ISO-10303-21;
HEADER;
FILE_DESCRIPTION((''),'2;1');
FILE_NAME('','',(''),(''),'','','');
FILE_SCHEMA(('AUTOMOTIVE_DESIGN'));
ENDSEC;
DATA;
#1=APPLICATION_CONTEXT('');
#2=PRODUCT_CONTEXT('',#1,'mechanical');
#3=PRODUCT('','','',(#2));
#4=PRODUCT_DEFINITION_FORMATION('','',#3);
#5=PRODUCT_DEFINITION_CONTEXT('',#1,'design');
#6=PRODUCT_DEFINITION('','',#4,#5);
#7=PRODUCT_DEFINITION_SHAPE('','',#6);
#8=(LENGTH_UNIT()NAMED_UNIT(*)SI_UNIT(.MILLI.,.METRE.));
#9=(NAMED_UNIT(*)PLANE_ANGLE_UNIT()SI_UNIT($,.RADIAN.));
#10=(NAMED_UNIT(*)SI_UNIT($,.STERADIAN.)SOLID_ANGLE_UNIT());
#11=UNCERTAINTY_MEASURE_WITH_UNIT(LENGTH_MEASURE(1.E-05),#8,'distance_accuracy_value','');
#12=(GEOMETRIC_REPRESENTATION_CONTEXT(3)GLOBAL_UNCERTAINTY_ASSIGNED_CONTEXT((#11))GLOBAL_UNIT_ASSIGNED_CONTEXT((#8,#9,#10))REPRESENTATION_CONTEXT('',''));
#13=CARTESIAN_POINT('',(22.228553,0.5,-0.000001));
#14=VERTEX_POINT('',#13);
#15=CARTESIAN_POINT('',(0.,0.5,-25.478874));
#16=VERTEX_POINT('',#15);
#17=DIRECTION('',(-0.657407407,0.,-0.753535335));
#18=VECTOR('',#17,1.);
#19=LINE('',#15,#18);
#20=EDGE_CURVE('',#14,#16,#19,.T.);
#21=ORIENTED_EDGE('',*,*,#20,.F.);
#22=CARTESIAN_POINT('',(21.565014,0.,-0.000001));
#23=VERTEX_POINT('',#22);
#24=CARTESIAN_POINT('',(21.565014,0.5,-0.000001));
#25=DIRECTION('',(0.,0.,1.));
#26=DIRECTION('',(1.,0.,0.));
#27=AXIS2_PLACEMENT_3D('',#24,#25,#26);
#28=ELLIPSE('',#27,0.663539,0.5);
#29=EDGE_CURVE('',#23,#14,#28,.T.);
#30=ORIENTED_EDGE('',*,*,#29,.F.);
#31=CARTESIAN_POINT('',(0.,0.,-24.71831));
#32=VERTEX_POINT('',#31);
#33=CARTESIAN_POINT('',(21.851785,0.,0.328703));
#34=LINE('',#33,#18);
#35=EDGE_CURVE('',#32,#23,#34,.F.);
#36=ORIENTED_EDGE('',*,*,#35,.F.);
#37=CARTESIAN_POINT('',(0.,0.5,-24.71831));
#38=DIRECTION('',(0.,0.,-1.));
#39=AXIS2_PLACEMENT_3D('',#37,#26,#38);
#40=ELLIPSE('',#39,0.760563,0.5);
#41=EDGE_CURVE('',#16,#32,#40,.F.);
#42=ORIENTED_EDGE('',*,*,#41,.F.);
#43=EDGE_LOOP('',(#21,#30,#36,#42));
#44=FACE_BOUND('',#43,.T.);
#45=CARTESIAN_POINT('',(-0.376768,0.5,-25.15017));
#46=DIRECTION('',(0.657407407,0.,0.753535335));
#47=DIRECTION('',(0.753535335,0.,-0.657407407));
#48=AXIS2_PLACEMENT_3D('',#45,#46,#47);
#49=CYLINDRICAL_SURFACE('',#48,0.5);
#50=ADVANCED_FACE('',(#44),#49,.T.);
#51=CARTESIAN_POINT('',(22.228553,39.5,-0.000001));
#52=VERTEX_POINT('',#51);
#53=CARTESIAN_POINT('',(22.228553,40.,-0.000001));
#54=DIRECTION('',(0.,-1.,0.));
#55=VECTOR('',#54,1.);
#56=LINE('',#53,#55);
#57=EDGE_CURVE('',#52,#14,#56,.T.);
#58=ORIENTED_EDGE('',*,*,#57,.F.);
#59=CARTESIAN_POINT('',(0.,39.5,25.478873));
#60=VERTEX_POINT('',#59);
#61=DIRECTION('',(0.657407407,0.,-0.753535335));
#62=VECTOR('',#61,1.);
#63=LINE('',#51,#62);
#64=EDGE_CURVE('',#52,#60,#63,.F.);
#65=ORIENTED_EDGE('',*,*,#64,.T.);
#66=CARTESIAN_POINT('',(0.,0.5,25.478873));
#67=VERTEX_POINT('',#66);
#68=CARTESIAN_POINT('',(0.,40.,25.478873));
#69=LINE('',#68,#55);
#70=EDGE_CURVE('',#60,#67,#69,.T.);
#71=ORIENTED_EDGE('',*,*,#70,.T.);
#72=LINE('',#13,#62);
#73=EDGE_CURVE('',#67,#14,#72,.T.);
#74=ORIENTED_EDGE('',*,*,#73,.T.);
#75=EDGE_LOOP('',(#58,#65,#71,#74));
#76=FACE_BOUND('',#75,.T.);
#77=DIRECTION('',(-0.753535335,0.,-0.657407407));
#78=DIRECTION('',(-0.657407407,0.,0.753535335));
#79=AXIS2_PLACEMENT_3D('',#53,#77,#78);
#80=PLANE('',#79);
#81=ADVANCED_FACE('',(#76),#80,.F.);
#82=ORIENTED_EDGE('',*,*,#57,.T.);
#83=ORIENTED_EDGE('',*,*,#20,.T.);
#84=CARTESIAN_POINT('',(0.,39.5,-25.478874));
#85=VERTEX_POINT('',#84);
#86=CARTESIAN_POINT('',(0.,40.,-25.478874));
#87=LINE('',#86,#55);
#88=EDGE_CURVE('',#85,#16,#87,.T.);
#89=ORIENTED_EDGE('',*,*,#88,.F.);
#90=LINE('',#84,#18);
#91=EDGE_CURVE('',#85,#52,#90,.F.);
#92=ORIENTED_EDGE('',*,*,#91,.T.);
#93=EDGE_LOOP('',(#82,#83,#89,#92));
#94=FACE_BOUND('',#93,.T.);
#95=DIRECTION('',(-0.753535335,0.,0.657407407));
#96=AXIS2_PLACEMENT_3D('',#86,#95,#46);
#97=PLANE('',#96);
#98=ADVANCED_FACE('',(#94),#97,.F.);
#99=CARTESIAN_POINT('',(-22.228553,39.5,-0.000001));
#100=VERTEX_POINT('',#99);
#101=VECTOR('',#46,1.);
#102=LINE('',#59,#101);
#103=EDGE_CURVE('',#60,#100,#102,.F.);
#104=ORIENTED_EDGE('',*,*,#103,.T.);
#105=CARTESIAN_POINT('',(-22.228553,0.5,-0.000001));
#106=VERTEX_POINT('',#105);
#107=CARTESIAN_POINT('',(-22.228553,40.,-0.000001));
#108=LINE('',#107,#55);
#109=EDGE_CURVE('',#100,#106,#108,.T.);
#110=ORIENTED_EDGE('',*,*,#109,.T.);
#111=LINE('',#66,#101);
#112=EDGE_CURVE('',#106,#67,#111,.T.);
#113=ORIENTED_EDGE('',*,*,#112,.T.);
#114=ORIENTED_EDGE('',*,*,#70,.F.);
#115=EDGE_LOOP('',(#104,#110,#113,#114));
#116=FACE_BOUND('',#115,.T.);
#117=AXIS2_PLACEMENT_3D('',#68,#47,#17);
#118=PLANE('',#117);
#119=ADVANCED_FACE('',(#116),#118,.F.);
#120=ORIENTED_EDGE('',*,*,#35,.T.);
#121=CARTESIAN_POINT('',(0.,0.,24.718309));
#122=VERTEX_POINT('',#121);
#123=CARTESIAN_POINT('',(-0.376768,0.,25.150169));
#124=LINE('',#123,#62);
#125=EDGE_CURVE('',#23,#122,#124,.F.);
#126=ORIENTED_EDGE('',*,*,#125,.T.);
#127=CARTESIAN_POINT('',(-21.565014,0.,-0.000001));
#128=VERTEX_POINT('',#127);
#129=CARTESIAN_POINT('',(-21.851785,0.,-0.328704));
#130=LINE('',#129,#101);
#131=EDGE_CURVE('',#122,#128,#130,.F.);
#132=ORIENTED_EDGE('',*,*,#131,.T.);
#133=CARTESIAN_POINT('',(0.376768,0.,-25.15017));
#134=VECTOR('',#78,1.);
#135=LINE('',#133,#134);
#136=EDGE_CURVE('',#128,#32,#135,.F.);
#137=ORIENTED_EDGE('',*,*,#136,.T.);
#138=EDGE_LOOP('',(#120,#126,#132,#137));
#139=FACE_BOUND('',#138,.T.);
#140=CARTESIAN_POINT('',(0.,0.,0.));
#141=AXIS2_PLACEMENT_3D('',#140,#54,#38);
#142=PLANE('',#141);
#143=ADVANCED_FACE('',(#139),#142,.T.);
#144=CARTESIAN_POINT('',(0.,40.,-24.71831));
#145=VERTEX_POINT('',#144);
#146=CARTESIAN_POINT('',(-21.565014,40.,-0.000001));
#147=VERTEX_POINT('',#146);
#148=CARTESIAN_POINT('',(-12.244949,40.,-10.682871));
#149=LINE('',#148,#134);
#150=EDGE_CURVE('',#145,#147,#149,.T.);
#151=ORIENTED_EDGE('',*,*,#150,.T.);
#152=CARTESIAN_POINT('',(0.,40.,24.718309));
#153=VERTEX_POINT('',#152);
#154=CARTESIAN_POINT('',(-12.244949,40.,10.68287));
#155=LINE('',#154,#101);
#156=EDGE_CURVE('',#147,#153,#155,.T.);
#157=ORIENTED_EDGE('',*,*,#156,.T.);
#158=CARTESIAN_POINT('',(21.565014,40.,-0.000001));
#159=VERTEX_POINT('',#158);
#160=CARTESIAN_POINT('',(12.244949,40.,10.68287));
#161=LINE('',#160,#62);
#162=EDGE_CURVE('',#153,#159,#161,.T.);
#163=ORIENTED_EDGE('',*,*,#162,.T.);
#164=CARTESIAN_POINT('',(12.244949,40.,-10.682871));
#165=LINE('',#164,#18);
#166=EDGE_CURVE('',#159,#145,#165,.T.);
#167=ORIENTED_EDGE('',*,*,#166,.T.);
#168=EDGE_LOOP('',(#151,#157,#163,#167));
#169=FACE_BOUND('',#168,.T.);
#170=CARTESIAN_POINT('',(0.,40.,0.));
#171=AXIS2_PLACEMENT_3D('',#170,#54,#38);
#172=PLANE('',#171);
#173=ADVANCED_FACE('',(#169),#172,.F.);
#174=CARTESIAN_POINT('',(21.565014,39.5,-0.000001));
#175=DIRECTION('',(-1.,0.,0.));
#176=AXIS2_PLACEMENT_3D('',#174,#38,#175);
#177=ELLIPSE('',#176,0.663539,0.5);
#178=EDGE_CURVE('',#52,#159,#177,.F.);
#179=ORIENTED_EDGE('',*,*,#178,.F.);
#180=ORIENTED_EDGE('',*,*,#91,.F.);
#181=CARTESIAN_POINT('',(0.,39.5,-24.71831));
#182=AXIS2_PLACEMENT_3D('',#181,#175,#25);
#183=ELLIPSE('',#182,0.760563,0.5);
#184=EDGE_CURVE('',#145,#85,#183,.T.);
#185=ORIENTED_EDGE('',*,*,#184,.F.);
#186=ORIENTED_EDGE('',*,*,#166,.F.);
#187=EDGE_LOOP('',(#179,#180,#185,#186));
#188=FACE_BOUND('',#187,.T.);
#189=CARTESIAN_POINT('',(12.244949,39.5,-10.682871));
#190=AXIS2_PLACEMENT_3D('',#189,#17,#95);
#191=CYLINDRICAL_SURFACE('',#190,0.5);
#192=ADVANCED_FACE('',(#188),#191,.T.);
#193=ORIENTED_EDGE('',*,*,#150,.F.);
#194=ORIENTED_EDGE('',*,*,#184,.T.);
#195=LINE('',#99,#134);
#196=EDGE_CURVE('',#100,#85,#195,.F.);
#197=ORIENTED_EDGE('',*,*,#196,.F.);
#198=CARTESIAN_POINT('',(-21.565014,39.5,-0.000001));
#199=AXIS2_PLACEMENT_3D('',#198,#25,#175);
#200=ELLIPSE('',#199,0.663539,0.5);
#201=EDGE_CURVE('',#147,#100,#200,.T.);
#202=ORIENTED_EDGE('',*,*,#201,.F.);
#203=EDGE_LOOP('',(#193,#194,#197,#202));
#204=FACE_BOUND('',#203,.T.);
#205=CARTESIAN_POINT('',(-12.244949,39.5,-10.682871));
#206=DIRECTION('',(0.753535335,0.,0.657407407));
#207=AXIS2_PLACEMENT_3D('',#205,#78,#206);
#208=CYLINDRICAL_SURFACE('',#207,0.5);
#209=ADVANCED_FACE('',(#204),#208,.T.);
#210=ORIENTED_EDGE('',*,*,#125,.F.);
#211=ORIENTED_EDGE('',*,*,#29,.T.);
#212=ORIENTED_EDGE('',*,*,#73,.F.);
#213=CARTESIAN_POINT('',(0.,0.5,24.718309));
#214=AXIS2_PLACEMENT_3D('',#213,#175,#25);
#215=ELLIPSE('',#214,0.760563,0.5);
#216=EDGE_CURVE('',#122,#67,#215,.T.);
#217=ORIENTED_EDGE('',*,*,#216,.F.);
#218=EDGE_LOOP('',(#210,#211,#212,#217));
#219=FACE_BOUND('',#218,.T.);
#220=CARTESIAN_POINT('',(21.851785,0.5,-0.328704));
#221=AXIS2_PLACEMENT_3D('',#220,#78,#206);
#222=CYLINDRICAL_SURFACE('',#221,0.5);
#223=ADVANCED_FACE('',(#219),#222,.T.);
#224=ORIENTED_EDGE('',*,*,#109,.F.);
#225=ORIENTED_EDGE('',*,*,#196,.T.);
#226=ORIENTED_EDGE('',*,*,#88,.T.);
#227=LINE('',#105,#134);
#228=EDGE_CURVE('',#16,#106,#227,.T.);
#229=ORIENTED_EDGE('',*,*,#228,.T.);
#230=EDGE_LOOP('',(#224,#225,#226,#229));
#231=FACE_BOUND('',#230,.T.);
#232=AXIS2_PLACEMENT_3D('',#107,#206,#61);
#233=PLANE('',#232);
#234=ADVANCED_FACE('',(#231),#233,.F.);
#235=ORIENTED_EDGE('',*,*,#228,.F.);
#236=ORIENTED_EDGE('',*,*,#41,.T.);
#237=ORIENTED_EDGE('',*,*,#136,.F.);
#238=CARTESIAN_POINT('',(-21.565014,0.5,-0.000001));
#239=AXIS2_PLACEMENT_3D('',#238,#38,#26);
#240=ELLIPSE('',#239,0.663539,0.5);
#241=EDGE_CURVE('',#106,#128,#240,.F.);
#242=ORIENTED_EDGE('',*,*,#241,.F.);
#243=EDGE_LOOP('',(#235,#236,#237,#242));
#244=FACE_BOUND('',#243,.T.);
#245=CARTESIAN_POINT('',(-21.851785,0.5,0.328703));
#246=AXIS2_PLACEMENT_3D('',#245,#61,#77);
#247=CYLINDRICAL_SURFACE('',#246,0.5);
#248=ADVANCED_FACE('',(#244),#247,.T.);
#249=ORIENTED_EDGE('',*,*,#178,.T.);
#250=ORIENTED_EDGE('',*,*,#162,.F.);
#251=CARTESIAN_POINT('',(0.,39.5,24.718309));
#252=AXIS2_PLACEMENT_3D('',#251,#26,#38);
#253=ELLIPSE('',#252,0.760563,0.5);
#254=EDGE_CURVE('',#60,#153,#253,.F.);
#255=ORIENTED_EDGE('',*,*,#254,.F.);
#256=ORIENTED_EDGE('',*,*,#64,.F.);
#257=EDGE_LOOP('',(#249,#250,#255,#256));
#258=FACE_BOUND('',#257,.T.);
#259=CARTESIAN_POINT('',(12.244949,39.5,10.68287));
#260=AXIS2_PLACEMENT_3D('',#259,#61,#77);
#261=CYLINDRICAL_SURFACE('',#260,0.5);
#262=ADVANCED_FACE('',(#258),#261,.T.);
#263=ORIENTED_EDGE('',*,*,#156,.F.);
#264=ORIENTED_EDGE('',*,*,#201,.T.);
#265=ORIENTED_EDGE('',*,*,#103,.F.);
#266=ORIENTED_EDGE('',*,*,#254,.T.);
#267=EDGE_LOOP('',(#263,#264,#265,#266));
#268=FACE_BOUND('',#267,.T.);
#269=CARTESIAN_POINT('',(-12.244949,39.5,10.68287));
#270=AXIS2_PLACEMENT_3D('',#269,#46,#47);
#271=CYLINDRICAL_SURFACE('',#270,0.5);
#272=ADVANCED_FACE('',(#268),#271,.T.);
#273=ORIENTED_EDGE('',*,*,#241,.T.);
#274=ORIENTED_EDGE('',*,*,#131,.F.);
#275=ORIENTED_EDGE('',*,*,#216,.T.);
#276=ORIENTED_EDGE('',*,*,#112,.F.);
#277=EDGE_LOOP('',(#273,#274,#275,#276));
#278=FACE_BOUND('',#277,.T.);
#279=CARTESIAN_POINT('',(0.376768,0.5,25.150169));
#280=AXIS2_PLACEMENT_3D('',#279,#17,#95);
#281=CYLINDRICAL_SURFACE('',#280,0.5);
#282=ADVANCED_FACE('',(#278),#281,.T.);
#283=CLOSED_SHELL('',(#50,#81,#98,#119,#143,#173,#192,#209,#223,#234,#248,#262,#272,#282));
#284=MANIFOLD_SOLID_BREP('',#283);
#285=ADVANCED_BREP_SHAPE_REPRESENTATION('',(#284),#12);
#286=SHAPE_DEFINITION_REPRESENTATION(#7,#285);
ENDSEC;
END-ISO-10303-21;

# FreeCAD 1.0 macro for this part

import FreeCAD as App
import Part
import Sketcher
from FreeCAD import Vector
Q = App.Units.Quantity


def edges_at(feature, points):
    """Names of the edges that pass closest to the given points."""
    edges = feature.Shape.Edges
    near = lambda p: min(range(len(edges)), key=lambda i: edges[i].distToShape(Part.Vertex(*p))[0])
    return sorted({f"Edge{near(p) + 1}" for p in points})


def add_polygon(sketch, points):
    """Adds a closed chain of lines whose ends are joined by coincident constraints."""
    first, n = sketch.GeometryCount, len(points)
    for a, b in zip(points, points[1:] + points[:1]):
        sketch.addGeometry(Part.LineSegment(App.Vector(*a, 0), App.Vector(*b, 0)), False)
    for i in range(n):
        sketch.addConstraint(Sketcher.Constraint("Coincident", first + i, 2, first + (i + 1) % n, 1))

doc = App.newDocument("Part")
body = doc.addObject("PartDesign::Body", "Body")

sketch1 = body.newObject("Sketcher::SketchObject", "Sketch")
sketch1.AttachmentSupport = (doc.getObject("XZ_Plane"), [""])
sketch1.MapMode = "FlatFace"
add_polygon(sketch1, [(0, -25), (-22, 0), (0, 25), (22, 0)])
sketch1.addConstraint(Sketcher.Constraint("Symmetric", 0, 2, 2, 2, -1, 1))
sketch1.addConstraint(Sketcher.Constraint("Symmetric", 1, 2, 3, 2, -1, 1))
sketch1.addConstraint(Sketcher.Constraint("PointOnObject", 0, 2, -1))
sketch1.addConstraint(Sketcher.Constraint("PointOnObject", 1, 2, -2))
sketch1.addConstraint(Sketcher.Constraint("Distance", 0, Q("33.812447 mm")))
sketch1.addConstraint(Sketcher.Constraint("DistanceX", 0, 2, -1, 1, Q("22.228553 mm")))
pad1 = body.newObject("PartDesign::Pad", "Pad")
pad1.Profile = sketch1
pad1.Length = 40
pad1.Reversed = True
doc.recompute()

fillet = body.newObject("PartDesign::Fillet", "Fillet")
fillet.Base = (pad1, edges_at(pad1, [
    (11.114, 40, -12.739),
    (-11.114, 40, -12.739),
    (-11.114, 40, 12.739),
    (-11.114, 0, -12.739),
    (11.114, 0, -12.739),
    (11.114, 0, 12.739),
    (-11.114, 0, 12.739),
    (11.114, 40, 12.739),
]))
fillet.Radius = 0.5

doc.recompute()
